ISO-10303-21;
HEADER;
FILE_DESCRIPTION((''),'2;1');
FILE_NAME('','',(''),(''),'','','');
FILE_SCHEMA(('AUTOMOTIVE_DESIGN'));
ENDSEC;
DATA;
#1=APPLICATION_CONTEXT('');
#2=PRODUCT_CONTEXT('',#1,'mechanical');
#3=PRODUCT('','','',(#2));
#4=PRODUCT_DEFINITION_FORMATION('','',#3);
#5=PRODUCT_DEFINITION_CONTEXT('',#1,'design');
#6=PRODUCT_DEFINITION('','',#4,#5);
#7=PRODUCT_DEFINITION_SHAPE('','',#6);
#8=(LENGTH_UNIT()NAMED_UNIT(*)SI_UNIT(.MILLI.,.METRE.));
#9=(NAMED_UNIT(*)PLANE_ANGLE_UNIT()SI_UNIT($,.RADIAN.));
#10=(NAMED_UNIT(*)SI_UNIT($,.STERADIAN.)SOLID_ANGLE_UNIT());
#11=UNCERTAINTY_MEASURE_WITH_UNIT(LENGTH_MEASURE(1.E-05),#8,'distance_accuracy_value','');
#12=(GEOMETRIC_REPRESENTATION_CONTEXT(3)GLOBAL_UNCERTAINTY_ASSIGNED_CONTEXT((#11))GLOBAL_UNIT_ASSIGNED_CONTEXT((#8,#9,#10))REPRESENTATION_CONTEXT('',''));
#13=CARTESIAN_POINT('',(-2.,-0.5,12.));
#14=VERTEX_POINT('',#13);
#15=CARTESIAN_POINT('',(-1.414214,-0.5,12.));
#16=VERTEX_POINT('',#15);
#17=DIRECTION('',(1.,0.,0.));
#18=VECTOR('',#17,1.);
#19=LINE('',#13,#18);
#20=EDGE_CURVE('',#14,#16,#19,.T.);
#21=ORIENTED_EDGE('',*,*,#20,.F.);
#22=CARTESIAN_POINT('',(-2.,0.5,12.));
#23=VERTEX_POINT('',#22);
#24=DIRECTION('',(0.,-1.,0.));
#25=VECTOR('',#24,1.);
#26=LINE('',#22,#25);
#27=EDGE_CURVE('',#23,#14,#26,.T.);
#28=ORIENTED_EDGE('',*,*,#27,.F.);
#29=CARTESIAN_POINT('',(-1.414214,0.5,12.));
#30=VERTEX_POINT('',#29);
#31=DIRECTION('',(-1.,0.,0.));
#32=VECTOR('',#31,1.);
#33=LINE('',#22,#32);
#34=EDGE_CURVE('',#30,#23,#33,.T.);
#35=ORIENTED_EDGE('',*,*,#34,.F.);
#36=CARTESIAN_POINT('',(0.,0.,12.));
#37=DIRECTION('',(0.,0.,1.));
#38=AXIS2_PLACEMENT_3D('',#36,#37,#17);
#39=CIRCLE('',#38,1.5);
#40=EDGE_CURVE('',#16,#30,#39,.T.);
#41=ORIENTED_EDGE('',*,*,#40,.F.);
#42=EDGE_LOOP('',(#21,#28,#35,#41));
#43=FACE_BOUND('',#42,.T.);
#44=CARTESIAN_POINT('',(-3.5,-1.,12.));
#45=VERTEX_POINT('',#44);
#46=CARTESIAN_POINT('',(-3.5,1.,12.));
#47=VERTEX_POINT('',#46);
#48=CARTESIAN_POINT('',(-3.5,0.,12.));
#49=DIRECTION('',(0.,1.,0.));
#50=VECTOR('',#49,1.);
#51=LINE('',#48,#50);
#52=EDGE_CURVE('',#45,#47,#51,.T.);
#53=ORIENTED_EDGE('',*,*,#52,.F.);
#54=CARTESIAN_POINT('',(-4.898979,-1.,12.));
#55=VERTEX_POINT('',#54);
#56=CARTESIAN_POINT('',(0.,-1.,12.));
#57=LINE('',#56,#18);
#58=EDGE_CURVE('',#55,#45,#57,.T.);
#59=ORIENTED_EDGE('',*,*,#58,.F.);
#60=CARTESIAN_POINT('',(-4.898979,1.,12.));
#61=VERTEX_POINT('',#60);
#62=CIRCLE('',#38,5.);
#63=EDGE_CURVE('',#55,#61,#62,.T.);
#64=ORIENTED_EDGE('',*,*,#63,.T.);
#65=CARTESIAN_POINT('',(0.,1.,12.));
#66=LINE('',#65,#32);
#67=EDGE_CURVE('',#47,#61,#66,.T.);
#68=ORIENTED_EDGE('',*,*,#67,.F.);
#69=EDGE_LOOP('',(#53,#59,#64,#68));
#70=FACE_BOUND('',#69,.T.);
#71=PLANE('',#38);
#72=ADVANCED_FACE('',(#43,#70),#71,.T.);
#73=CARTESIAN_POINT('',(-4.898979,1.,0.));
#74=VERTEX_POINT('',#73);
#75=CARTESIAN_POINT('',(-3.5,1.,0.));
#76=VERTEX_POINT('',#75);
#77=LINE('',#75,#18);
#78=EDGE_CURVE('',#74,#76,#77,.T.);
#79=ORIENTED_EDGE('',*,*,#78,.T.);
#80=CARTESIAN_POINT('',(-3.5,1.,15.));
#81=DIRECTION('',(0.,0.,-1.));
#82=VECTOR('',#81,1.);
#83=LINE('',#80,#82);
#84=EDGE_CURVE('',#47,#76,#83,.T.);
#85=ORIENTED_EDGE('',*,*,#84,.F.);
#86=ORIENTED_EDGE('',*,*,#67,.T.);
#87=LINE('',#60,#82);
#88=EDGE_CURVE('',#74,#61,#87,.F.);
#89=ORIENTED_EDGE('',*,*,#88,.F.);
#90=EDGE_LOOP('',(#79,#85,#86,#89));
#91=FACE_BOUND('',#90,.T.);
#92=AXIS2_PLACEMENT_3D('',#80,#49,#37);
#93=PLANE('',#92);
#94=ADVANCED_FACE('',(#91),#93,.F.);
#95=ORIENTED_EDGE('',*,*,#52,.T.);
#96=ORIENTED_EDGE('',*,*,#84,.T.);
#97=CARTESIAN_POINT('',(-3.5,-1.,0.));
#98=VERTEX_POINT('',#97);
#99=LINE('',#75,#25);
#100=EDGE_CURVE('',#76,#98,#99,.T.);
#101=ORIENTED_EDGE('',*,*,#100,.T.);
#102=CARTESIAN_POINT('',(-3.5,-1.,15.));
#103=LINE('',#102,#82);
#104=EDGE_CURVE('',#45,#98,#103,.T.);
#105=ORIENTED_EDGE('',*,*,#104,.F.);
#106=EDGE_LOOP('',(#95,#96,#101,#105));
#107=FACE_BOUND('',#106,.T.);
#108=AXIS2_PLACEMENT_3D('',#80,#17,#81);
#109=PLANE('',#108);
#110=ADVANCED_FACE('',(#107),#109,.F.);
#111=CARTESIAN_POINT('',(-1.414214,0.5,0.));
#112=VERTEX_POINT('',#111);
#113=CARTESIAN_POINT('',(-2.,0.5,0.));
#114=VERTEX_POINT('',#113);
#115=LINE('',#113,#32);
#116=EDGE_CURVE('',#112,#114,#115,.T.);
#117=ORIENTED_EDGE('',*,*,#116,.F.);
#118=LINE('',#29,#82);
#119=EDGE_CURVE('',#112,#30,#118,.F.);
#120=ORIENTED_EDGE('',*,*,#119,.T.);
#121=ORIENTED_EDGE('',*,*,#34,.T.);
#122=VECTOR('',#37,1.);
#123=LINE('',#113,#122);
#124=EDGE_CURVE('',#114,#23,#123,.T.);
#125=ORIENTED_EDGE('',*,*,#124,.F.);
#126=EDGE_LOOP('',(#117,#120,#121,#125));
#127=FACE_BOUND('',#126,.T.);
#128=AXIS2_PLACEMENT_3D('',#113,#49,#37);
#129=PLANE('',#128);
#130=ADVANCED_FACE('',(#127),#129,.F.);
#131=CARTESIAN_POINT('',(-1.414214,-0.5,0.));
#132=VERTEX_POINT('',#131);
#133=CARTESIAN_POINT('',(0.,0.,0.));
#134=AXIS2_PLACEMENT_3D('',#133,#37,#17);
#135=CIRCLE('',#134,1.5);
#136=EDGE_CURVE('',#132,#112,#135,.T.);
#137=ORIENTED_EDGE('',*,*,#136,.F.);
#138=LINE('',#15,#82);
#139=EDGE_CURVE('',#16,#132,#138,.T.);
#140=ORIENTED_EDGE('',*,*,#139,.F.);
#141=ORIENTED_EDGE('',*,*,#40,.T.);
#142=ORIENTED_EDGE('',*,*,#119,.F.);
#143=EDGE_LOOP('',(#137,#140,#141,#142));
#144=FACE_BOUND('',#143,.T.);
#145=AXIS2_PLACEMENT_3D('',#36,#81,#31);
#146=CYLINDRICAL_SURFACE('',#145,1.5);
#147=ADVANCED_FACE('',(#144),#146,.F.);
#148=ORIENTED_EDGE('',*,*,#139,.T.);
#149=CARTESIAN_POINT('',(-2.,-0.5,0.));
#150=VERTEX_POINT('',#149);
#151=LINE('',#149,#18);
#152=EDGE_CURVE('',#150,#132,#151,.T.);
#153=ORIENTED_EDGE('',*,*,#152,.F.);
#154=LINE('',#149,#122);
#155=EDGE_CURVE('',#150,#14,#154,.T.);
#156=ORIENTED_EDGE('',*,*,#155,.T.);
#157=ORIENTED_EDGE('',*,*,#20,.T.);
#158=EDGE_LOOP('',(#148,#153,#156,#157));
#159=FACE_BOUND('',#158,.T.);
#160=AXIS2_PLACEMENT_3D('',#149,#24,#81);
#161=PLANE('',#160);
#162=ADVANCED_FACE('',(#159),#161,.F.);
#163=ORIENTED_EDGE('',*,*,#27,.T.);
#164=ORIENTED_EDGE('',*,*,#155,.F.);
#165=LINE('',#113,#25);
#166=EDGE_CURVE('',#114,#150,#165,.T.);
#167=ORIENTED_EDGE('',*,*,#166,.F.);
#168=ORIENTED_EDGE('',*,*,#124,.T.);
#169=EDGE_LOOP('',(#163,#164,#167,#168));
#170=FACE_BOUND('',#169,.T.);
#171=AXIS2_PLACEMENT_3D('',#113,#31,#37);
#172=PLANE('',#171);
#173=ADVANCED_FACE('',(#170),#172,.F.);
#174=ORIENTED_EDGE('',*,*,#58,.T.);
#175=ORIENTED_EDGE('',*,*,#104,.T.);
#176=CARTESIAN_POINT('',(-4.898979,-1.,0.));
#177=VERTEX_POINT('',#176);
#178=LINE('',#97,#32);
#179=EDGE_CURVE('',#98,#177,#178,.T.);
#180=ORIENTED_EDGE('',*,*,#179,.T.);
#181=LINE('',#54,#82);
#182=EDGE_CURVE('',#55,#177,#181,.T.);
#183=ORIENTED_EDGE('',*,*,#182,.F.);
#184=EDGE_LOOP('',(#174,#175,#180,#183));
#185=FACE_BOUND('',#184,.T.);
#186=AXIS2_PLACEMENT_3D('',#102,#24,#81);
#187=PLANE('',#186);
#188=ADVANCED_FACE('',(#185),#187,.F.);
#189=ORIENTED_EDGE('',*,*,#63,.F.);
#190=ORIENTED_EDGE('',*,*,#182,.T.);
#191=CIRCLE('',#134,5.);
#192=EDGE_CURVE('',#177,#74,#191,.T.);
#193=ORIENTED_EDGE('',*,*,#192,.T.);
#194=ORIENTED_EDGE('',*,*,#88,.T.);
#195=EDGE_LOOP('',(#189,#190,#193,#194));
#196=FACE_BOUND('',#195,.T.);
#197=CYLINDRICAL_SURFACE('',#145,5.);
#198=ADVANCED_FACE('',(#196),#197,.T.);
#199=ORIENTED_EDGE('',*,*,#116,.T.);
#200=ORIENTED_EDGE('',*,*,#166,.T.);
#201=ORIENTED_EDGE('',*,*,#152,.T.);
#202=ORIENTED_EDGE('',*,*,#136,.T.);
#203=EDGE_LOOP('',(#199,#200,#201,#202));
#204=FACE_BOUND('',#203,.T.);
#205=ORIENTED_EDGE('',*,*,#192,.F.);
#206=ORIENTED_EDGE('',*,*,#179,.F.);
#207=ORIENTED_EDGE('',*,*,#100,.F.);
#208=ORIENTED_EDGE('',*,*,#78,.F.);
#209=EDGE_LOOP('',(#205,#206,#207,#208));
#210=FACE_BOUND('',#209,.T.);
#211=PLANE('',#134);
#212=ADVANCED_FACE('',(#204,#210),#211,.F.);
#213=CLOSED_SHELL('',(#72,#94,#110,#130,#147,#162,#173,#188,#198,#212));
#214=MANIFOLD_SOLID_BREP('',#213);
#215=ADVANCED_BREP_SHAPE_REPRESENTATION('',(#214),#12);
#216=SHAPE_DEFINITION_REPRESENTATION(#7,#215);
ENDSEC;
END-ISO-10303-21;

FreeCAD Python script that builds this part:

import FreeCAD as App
import Part
import Sketcher
from FreeCAD import Vector
Q = App.Units.Quantity

doc = App.newDocument("Part")
body = doc.addObject("PartDesign::Body", "Body")

# Sketch on XY plane
sketch1 = doc.addObject("Sketcher::SketchObject", "Sketch")
body.addObject(sketch1)
sketch1.AttachmentSupport = (doc.XY_Plane, [""])
sketch1.MapMode = "FlatFace"
sketch1.addGeometry(Part.Circle(Vector(0, 0, 0), Vector(0, 0, 1), 5), False)
sketch1.addGeometry(Part.Circle(Vector(0, 0, 0), Vector(0, 0, 1), 1.5), False)
sketch1.addConstraint(Sketcher.Constraint("Coincident", 0, 3, -1, 1))
sketch1.addConstraint(Sketcher.Constraint("Coincident", 1, 3, -1, 1))
sketch1.addConstraint(Sketcher.Constraint("Diameter", 0, Q("10 mm")))
sketch1.addConstraint(Sketcher.Constraint("Diameter", 1, Q("3 mm")))
pad1 = doc.addObject("PartDesign::Pad", "Pad")
body.addObject(pad1)
pad1.Profile = sketch1
pad1.Length = 12

# Sketch on XY plane
sketch2 = doc.addObject("Sketcher::SketchObject", "Sketch001")
body.addObject(sketch2)
sketch2.AttachmentSupport = (doc.XY_Plane, [""])
sketch2.MapMode = "FlatFace"
sketch2.AttachmentOffset = App.Placement(Vector(0, 0, 12), App.Rotation())
sketch2.addGeometry(Part.LineSegment(Vector(-2, 0.5, 0), Vector(-2, -0.5, 0)), False)
sketch2.addGeometry(Part.LineSegment(Vector(-2, -0.5, 0), Vector(-1, -0.5, 0)), False)
sketch2.addGeometry(Part.LineSegment(Vector(-1, -0.5, 0), Vector(-1, 0.5, 0)), False)
sketch2.addGeometry(Part.LineSegment(Vector(-1, 0.5, 0), Vector(-2, 0.5, 0)), False)
sketch2.addConstraint(Sketcher.Constraint("Coincident", 0, 2, 1, 1))
sketch2.addConstraint(Sketcher.Constraint("Coincident", 1, 2, 2, 1))
sketch2.addConstraint(Sketcher.Constraint("Coincident", 2, 2, 3, 1))
sketch2.addConstraint(Sketcher.Constraint("Coincident", 3, 2, 0, 1))
sketch2.addConstraint(Sketcher.Constraint("Vertical", 0))
sketch2.addConstraint(Sketcher.Constraint("Horizontal", 1))
sketch2.addConstraint(Sketcher.Constraint("Vertical", 2))
sketch2.addConstraint(Sketcher.Constraint("Horizontal", 3))
sketch2.addConstraint(Sketcher.Constraint("Equal", 3, 0))
sketch2.addConstraint(Sketcher.Constraint("DistanceX", 1, 1, 1, 2, Q("1 mm")))
sketch2.addConstraint(Sketcher.Constraint("DistanceX", 0, 2, -1, 1, Q("2 mm")))
sketch2.addConstraint(Sketcher.Constraint("DistanceY", 0, 2, -1, 1, Q("0.5 mm")))
pocket1 = doc.addObject("PartDesign::Pocket", "Pocket")
body.addObject(pocket1)
pocket1.Profile = sketch2
pocket1.Length = 12

# Sketch on XY plane
sketch3 = doc.addObject("Sketcher::SketchObject", "Sketch002")
body.addObject(sketch3)
sketch3.AttachmentSupport = (doc.XY_Plane, [""])
sketch3.MapMode = "FlatFace"
sketch3.AttachmentOffset = App.Placement(Vector(0, 0, 12), App.Rotation())
sketch3.addGeometry(Part.LineSegment(Vector(-5.5, 0.5, 0), Vector(-5.5, -0.5, 0)), False)
sketch3.addGeometry(Part.LineSegment(Vector(-5.5, -0.5, 0), Vector(-4.5, -0.5, 0)), False)
sketch3.addGeometry(Part.LineSegment(Vector(-4.5, -0.5, 0), Vector(-4.5, 0.5, 0)), False)
sketch3.addGeometry(Part.LineSegment(Vector(-4.5, 0.5, 0), Vector(-5.5, 0.5, 0)), False)
sketch3.addConstraint(Sketcher.Constraint("Coincident", 0, 2, 1, 1))
sketch3.addConstraint(Sketcher.Constraint("Coincident", 1, 2, 2, 1))
sketch3.addConstraint(Sketcher.Constraint("Coincident", 2, 2, 3, 1))
sketch3.addConstraint(Sketcher.Constraint("Coincident", 3, 2, 0, 1))
sketch3.addConstraint(Sketcher.Constraint("Vertical", 0))
sketch3.addConstraint(Sketcher.Constraint("Horizontal", 1))
sketch3.addConstraint(Sketcher.Constraint("Vertical", 2))
sketch3.addConstraint(Sketcher.Constraint("Horizontal", 3))
sketch3.addConstraint(Sketcher.Constraint("Equal", 3, 0))
sketch3.addConstraint(Sketcher.Constraint("DistanceX", 1, 1, 1, 2, Q("1 mm")))
sketch3.addConstraint(Sketcher.Constraint("DistanceX", 0, 2, -1, 1, Q("5.5 mm")))
sketch3.addConstraint(Sketcher.Constraint("DistanceY", 0, 2, -1, 1, Q("0.5 mm")))
pocket2 = doc.addObject("PartDesign::Pocket", "Pocket001")
body.addObject(pocket2)
pocket2.Profile = sketch3
pocket2.Length = 4

# Sketch on XY plane
sketch4 = doc.addObject("Sketcher::SketchObject", "Sketch003")
body.addObject(sketch4)
sketch4.AttachmentSupport = (doc.XY_Plane, [""])
sketch4.MapMode = "FlatFace"
sketch4.addGeometry(Part.LineSegment(Vector(-3.5, 1, 0), Vector(-3.5, -1, 0)), False)
sketch4.addGeometry(Part.LineSegment(Vector(-3.5, -1, 0), Vector(-6.5, -1, 0)), False)
sketch4.addGeometry(Part.LineSegment(Vector(-6.5, -1, 0), Vector(-6.5, 1, 0)), False)
sketch4.addGeometry(Part.LineSegment(Vector(-6.5, 1, 0), Vector(-3.5, 1, 0)), False)
sketch4.addConstraint(Sketcher.Constraint("Coincident", 0, 2, 1, 1))
sketch4.addConstraint(Sketcher.Constraint("Coincident", 1, 2, 2, 1))
sketch4.addConstraint(Sketcher.Constraint("Coincident", 2, 2, 3, 1))
sketch4.addConstraint(Sketcher.Constraint("Coincident", 3, 2, 0, 1))
sketch4.addConstraint(Sketcher.Constraint("Vertical", 0))
sketch4.addConstraint(Sketcher.Constraint("Horizontal", 1))
sketch4.addConstraint(Sketcher.Constraint("Vertical", 2))
sketch4.addConstraint(Sketcher.Constraint("Horizontal", 3))
sketch4.addConstraint(Sketcher.Constraint("DistanceX", 1, 2, 1, 1, Q("3 mm")))
sketch4.addConstraint(Sketcher.Constraint("DistanceY", 0, 2, 0, 1, Q("2 mm")))
sketch4.addConstraint(Sketcher.Constraint("DistanceY", 0, 2, -1, 1, Q("1 mm")))
sketch4.addConstraint(Sketcher.Constraint("DistanceX", 0, 2, -1, 1, Q("3.5 mm")))
pocket3 = doc.addObject("PartDesign::Pocket", "Pocket002")
body.addObject(pocket3)
pocket3.Profile = sketch4
pocket3.Length = 15
pocket3.Reversed = True

doc.recompute()
